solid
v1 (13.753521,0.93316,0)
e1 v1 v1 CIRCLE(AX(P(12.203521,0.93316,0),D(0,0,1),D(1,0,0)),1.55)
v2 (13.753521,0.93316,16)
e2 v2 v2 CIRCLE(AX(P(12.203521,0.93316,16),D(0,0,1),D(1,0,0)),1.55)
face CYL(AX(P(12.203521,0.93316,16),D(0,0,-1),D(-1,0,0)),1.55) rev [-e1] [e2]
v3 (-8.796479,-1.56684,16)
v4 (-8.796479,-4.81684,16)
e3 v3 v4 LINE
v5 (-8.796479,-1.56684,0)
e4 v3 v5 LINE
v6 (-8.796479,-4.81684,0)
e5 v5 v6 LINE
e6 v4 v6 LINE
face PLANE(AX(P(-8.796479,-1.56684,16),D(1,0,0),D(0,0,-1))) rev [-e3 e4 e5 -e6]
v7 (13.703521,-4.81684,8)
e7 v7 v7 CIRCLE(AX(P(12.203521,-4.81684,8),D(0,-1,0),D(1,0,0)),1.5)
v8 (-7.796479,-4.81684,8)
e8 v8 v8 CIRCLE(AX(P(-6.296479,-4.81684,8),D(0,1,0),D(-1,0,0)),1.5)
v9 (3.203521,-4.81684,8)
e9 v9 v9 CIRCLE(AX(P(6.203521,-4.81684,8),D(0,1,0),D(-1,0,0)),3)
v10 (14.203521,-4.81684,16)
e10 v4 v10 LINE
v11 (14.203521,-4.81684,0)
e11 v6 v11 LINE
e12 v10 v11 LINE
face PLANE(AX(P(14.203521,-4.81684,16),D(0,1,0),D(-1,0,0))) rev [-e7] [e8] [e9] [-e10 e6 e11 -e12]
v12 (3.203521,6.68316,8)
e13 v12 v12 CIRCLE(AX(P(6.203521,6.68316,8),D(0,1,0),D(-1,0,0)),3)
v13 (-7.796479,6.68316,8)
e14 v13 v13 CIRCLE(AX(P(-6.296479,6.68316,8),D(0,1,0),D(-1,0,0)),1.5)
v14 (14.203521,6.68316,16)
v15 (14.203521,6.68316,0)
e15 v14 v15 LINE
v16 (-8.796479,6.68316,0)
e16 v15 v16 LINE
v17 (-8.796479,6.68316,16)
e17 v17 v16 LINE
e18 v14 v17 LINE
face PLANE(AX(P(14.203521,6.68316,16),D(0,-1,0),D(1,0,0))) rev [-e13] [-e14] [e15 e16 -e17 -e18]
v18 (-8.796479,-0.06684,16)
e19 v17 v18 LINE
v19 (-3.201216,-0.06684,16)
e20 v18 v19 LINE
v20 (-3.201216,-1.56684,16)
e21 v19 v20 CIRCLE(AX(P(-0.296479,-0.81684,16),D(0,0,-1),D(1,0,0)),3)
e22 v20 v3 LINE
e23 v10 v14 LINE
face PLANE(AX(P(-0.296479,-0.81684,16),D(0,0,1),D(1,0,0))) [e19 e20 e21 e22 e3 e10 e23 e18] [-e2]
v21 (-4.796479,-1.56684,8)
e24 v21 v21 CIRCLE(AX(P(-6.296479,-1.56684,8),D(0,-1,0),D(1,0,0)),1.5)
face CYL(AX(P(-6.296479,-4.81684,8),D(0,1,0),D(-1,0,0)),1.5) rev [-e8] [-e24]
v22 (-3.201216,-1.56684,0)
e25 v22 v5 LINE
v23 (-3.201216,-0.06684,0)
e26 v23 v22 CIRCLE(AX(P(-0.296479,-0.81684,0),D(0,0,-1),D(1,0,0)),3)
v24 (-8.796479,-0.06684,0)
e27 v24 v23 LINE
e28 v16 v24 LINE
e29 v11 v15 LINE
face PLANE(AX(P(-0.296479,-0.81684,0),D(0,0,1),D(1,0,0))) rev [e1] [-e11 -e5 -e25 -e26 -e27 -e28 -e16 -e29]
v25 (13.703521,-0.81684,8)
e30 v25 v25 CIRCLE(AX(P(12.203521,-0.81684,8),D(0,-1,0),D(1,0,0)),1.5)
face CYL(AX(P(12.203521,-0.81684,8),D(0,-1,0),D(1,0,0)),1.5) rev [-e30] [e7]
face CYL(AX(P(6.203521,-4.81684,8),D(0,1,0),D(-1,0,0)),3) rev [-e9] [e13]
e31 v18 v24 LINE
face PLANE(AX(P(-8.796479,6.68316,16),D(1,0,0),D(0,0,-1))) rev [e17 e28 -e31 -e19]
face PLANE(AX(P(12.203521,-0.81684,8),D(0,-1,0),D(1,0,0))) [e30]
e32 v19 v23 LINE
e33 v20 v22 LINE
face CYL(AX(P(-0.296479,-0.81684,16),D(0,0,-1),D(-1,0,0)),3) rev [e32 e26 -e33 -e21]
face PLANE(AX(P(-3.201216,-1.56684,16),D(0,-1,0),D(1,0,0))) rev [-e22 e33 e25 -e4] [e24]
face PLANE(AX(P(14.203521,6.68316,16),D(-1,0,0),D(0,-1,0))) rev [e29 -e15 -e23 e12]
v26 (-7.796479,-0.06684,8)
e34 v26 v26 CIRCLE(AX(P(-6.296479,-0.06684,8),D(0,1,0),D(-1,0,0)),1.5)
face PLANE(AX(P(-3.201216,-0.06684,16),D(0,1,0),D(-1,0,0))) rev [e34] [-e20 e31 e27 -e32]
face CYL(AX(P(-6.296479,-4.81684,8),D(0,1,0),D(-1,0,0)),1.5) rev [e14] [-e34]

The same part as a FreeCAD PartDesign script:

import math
import FreeCAD as App
import Part
import Sketcher
Q = App.Units.Quantity

doc = App.newDocument("Part")
body = doc.addObject("PartDesign::Body", "Body")

# Sketch on XY plane
sketch1 = doc.addObject("Sketcher::SketchObject", "Sketch")
body.addObject(sketch1)
sketch1.AttachmentSupport = (doc.XY_Plane, [""])
sketch1.MapMode = "FlatFace"
sketch1.addGeometry(Part.LineSegment(App.Vector(14.2, 6.7, 0), App.Vector(-8.8, 6.7, 0)), False)
sketch1.addGeometry(Part.LineSegment(App.Vector(-8.8, 6.7, 0), App.Vector(-8.8, -0.1, 0)), False)
sketch1.addGeometry(Part.LineSegment(App.Vector(-8.8, -0.1, 0), App.Vector(-3.2, -0.1, 0)), False)
sketch1.addGeometry(Part.ArcOfCircle(Part.Circle(App.Vector(-0.3, -0.8, 0), App.Vector(0, 0, 1), 3), math.radians(-166), math.radians(166)), False)
sketch1.addGeometry(Part.LineSegment(App.Vector(-3.2, -1.6, 0), App.Vector(-8.8, -1.6, 0)), False)
sketch1.addGeometry(Part.LineSegment(App.Vector(-8.8, -1.6, 0), App.Vector(-8.8, -4.8, 0)), False)
sketch1.addGeometry(Part.LineSegment(App.Vector(-8.8, -4.8, 0), App.Vector(14.2, -4.8, 0)), False)
sketch1.addGeometry(Part.LineSegment(App.Vector(14.2, -4.8, 0), App.Vector(14.2, 6.7, 0)), False)
sketch1.addGeometry(Part.Circle(App.Vector(12.2, 0.9, 0), App.Vector(0, 0, 1), 1.6), False)
sketch1.addConstraint(Sketcher.Constraint("Coincident", 0, 2, 1, 1))
sketch1.addConstraint(Sketcher.Constraint("Coincident", 1, 2, 2, 1))
sketch1.addConstraint(Sketcher.Constraint("Coincident", 2, 2, 3, 2))
sketch1.addConstraint(Sketcher.Constraint("Coincident", 3, 1, 4, 1))
sketch1.addConstraint(Sketcher.Constraint("Coincident", 4, 2, 5, 1))
sketch1.addConstraint(Sketcher.Constraint("Coincident", 5, 2, 6, 1))
sketch1.addConstraint(Sketcher.Constraint("Coincident", 6, 2, 7, 1))
sketch1.addConstraint(Sketcher.Constraint("Coincident", 7, 2, 0, 1))
sketch1.addConstraint(Sketcher.Constraint("Horizontal", 0))
sketch1.addConstraint(Sketcher.Constraint("Vertical", 1))
sketch1.addConstraint(Sketcher.Constraint("Horizontal", 2))
sketch1.addConstraint(Sketcher.Constraint("Horizontal", 4))
sketch1.addConstraint(Sketcher.Constraint("Vertical", 5))
sketch1.addConstraint(Sketcher.Constraint("Horizontal", 6))
sketch1.addConstraint(Sketcher.Constraint("Vertical", 7))
sketch1.addConstraint(Sketcher.Constraint("Vertical", 2, 2, 3, 1))
sketch1.addConstraint(Sketcher.Constraint("Vertical", 1, 2, 4, 2))
sketch1.addConstraint(Sketcher.Constraint("Radius", 3, Q("3 mm")))
sketch1.addConstraint(Sketcher.Constraint("Diameter", 8, Q("3.1 mm")))
sketch1.addConstraint(Sketcher.Constraint("DistanceX", 0, 2, 0, 1, Q("23 mm")))
sketch1.addConstraint(Sketcher.Constraint("DistanceY", 7, 1, 7, 2, Q("11.5 mm")))
sketch1.addConstraint(Sketcher.Constraint("DistanceX", 0, 2, 8, 3, Q("21 mm")))
sketch1.addConstraint(Sketcher.Constraint("DistanceY", 1, 2, 8, 3, Q("1 mm")))
sketch1.addConstraint(Sketcher.Constraint("DistanceY", 5, 2, 3, 3, Q("4 mm")))
sketch1.addConstraint(Sketcher.Constraint("DistanceY", 1, 2, 1, 1, Q("6.75 mm")))
sketch1.addConstraint(Sketcher.Constraint("DistanceX", 3, 3, 8, 3, Q("12.5 mm")))
sketch1.addConstraint(Sketcher.Constraint("DistanceX", 3, 3, -1, 1, Q("0.296479 mm")))
sketch1.addConstraint(Sketcher.Constraint("DistanceY", 3, 3, -1, 1, Q("0.81684 mm")))
pad1 = doc.addObject("PartDesign::Pad", "Pad")
body.addObject(pad1)
pad1.Profile = sketch1
pad1.Length = 16

# Sketch on XZ plane
sketch2 = doc.addObject("Sketcher::SketchObject", "Sketch001")
body.addObject(sketch2)
sketch2.AttachmentSupport = (doc.XZ_Plane, [""])
sketch2.MapMode = "FlatFace"
sketch2.AttachmentOffset = App.Placement(App.Vector(0, 0, -6.68316), App.Rotation())
sketch2.addGeometry(Part.Circle(App.Vector(-6.3, 8, 0), App.Vector(0, 0, 1), 1.5), False)
sketch2.addGeometry(Part.Circle(App.Vector(6.2, 8, 0), App.Vector(0, 0, 1), 3), False)
sketch2.addConstraint(Sketcher.Constraint("Horizontal", 0, 3, 1, 3))
sketch2.addConstraint(Sketcher.Constraint("Diameter", 0, Q("3 mm")))
sketch2.addConstraint(Sketcher.Constraint("Diameter", 1, Q("6 mm")))
sketch2.addConstraint(Sketcher.Constraint("DistanceY", -1, 1, 0, 3, Q("8 mm")))
sketch2.addConstraint(Sketcher.Constraint("DistanceX", 0, 3, 1, 3, Q("12.5 mm")))
sketch2.addConstraint(Sketcher.Constraint("DistanceX", 0, 3, -1, 1, Q("6.296479 mm")))
pocket1 = doc.addObject("PartDesign::Pocket", "Pocket")
body.addObject(pocket1)
pocket1.Profile = sketch2
pocket1.Type = "ThroughAll"
pocket1.Reversed = True

# Sketch on XZ plane
sketch3 = doc.addObject("Sketcher::SketchObject", "Sketch002")
body.addObject(sketch3)
sketch3.AttachmentSupport = (doc.XZ_Plane, [""])
sketch3.MapMode = "FlatFace"
sketch3.AttachmentOffset = App.Placement(App.Vector(0, 0, 4.81684), App.Rotation())
sketch3.addGeometry(Part.Circle(App.Vector(12.2, 8, 0), App.Vector(0, 0, 1), 1.5), False)
sketch3.addConstraint(Sketcher.Constraint("Diameter", 0, Q("3 mm")))
sketch3.addConstraint(Sketcher.Constraint("DistanceY", -1, 1, 0, 3, Q("8 mm")))
sketch3.addConstraint(Sketcher.Constraint("DistanceX", -1, 1, 0, 3, Q("12.203521 mm")))
pocket2 = doc.addObject("PartDesign::Pocket", "Pocket001")
body.addObject(pocket2)
pocket2.Profile = sketch3
pocket2.Length = 4

doc.recompute()
